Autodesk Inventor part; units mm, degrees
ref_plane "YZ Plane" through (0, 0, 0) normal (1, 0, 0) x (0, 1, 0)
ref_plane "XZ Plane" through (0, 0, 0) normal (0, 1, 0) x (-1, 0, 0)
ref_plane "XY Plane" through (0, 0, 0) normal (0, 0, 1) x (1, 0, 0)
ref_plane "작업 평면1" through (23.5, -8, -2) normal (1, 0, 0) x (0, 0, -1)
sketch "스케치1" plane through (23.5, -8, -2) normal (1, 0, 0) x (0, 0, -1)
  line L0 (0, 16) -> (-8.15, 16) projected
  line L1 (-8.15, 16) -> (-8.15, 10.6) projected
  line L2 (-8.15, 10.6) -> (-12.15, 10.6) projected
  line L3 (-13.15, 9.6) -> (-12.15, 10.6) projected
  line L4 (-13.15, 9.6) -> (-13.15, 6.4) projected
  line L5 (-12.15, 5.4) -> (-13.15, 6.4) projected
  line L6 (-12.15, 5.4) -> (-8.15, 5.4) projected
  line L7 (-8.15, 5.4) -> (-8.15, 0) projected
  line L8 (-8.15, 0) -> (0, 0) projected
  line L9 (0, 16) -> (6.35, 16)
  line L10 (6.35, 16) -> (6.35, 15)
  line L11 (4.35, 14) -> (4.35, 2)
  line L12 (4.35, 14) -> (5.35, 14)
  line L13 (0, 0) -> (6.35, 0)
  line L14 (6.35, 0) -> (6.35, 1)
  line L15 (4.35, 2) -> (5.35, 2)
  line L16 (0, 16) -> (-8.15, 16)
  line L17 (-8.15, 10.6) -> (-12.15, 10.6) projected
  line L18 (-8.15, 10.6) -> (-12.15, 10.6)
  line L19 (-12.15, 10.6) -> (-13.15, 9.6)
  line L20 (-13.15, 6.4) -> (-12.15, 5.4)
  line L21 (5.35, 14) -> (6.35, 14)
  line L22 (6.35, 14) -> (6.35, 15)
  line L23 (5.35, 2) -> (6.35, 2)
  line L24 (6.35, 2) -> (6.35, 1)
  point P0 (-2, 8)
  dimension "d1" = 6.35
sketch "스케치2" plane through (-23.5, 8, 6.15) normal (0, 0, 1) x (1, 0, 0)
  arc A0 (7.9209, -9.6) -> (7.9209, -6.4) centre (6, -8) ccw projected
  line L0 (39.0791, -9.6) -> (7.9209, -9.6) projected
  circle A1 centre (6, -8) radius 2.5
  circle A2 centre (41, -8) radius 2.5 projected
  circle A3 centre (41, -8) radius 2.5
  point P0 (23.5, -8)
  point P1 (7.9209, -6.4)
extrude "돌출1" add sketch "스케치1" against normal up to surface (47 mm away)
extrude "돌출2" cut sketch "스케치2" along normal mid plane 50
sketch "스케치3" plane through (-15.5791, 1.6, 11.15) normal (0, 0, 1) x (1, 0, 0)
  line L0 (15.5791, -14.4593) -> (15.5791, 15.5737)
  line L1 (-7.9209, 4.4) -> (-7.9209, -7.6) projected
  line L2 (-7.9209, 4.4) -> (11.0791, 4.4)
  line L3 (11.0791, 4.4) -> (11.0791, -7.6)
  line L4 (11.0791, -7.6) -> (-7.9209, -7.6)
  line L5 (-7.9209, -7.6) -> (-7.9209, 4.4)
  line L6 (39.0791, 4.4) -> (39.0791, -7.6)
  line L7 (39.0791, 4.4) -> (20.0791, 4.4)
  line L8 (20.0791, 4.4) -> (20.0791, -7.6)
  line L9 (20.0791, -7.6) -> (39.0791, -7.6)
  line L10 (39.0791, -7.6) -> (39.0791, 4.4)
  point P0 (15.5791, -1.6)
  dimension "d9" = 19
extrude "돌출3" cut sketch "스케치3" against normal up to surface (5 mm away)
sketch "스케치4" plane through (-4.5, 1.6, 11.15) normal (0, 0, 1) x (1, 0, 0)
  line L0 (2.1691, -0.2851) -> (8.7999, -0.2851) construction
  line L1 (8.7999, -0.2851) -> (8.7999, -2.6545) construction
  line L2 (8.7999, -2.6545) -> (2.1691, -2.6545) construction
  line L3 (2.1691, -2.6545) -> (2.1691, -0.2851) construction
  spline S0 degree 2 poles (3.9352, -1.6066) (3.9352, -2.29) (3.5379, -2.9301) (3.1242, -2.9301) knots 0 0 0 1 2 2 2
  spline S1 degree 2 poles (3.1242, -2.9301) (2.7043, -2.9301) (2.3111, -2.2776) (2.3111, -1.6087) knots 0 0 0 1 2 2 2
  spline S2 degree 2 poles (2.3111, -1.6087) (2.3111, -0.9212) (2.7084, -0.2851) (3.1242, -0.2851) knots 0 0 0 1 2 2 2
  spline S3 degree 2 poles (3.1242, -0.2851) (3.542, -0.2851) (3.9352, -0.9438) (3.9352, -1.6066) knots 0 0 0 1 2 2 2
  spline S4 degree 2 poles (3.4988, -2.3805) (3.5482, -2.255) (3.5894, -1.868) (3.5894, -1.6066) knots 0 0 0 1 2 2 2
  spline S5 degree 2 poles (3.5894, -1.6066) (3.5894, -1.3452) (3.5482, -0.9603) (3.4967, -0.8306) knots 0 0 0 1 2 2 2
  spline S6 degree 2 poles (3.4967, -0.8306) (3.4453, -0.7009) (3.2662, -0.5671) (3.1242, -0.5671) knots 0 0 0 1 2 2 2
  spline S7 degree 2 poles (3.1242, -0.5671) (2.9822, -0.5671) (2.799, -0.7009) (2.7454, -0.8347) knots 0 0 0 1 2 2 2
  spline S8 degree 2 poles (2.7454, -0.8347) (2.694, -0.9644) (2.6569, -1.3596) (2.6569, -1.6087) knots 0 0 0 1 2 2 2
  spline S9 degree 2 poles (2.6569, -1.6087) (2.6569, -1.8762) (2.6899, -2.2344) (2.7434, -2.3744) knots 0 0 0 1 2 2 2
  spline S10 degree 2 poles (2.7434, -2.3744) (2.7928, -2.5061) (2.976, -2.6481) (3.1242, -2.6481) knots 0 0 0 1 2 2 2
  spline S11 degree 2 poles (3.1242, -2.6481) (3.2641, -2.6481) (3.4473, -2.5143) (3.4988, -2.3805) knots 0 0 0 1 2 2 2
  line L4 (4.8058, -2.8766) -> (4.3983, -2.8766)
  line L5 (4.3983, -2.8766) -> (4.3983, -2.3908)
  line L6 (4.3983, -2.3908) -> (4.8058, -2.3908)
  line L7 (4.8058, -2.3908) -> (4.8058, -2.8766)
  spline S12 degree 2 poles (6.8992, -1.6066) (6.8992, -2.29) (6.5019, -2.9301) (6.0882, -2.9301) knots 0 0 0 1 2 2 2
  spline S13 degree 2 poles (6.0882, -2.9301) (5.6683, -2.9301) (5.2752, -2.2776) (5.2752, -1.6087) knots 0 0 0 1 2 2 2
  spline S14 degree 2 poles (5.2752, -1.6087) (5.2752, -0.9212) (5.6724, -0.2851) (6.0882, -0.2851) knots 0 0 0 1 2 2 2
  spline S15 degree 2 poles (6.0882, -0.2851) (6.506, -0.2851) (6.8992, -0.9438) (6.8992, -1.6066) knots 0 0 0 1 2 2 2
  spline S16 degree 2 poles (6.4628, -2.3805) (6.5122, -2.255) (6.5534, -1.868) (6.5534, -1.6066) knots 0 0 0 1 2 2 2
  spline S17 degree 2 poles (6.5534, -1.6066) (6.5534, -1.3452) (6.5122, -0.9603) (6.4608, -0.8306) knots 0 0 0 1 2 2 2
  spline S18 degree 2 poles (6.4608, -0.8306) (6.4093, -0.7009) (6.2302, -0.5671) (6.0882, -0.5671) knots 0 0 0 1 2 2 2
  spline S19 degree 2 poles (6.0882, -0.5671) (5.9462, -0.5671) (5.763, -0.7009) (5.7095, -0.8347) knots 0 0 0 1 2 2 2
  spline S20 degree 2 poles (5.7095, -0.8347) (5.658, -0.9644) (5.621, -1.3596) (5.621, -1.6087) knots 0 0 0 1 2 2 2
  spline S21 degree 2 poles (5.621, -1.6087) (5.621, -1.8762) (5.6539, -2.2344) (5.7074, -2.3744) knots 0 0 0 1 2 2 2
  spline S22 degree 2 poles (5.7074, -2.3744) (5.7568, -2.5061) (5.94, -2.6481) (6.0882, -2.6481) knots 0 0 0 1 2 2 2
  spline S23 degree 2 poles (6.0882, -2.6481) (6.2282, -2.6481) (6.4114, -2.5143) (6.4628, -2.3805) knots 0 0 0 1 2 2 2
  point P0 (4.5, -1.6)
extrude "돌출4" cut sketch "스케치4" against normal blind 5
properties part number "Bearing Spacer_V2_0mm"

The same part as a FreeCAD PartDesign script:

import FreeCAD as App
import Part
import Sketcher

V = App.Vector

doc = App.newDocument("Part")
body = doc.addObject("PartDesign::Body", "Body")

sketch1 = doc.addObject("Sketcher::SketchObject", "Sketch")
body.addObject(sketch1)
sketch1.AttachmentSupport = (doc.YZ_Plane, [""])
sketch1.MapMode = "FlatFace"
sketch1.AttachmentOffset = App.Placement(V(0, 0, 23.5), App.Rotation())
sketch1.addGeometry(Part.LineSegment(V(8, -8.3, 0), V(8, 6.2, 0)), False)
sketch1.addGeometry(Part.LineSegment(V(8, 6.2, 0), V(2.6, 6.2, 0)), False)
sketch1.addGeometry(Part.LineSegment(V(2.6, 6.2, 0), V(2.6, 10.2, 0)), False)
sketch1.addGeometry(Part.LineSegment(V(2.6, 10.2, 0), V(1.6, 11.2, 0)), False)
sketch1.addGeometry(Part.LineSegment(V(1.6, 11.2, 0), V(-1.6, 11.2, 0)), False)
sketch1.addGeometry(Part.LineSegment(V(-1.6, 11.2, 0), V(-2.6, 10.2, 0)), False)
sketch1.addGeometry(Part.LineSegment(V(-2.6, 10.2, 0), V(-2.6, 6.2, 0)), False)
sketch1.addGeometry(Part.LineSegment(V(-2.6, 6.2, 0), V(-8, 6.2, 0)), False)
sketch1.addGeometry(Part.LineSegment(V(-8, 6.2, 0), V(-8, -8.3, 0)), False)
sketch1.addGeometry(Part.LineSegment(V(-8, -8.3, 0), V(-6, -8.3, 0)), False)
sketch1.addGeometry(Part.LineSegment(V(-6, -8.3, 0), V(-6, -6.3, 0)), False)
sketch1.addGeometry(Part.LineSegment(V(-6, -6.3, 0), V(6, -6.3, 0)), False)
sketch1.addGeometry(Part.LineSegment(V(6, -6.3, 0), V(6, -8.3, 0)), False)
sketch1.addGeometry(Part.LineSegment(V(6, -8.3, 0), V(8, -8.3, 0)), False)
sketch1.addConstraint(Sketcher.Constraint("Coincident", 0, 2, 1, 1))
sketch1.addConstraint(Sketcher.Constraint("Coincident", 1, 2, 2, 1))
sketch1.addConstraint(Sketcher.Constraint("Coincident", 2, 2, 3, 1))
sketch1.addConstraint(Sketcher.Constraint("Coincident", 3, 2, 4, 1))
sketch1.addConstraint(Sketcher.Constraint("Coincident", 4, 2, 5, 1))
sketch1.addConstraint(Sketcher.Constraint("Coincident", 5, 2, 6, 1))
sketch1.addConstraint(Sketcher.Constraint("Coincident", 6, 2, 7, 1))
sketch1.addConstraint(Sketcher.Constraint("Coincident", 7, 2, 8, 1))
sketch1.addConstraint(Sketcher.Constraint("Coincident", 8, 2, 9, 1))
sketch1.addConstraint(Sketcher.Constraint("Coincident", 9, 2, 10, 1))
sketch1.addConstraint(Sketcher.Constraint("Coincident", 10, 2, 11, 1))
sketch1.addConstraint(Sketcher.Constraint("Coincident", 11, 2, 12, 1))
sketch1.addConstraint(Sketcher.Constraint("Coincident", 12, 2, 13, 1))
sketch1.addConstraint(Sketcher.Constraint("Coincident", 13, 2, 0, 1))
sketch1.addConstraint(Sketcher.Constraint("Vertical", 0))
sketch1.addConstraint(Sketcher.Constraint("Horizontal", 1))
sketch1.addConstraint(Sketcher.Constraint("Vertical", 2))
sketch1.addConstraint(Sketcher.Constraint("Horizontal", 4))
sketch1.addConstraint(Sketcher.Constraint("Vertical", 6))
sketch1.addConstraint(Sketcher.Constraint("Horizontal", 7))
sketch1.addConstraint(Sketcher.Constraint("Vertical", 8))
sketch1.addConstraint(Sketcher.Constraint("Horizontal", 9))
sketch1.addConstraint(Sketcher.Constraint("Vertical", 10))
sketch1.addConstraint(Sketcher.Constraint("Horizontal", 11))
sketch1.addConstraint(Sketcher.Constraint("Vertical", 12))
sketch1.addConstraint(Sketcher.Constraint("Horizontal", 13))
sketch1.addConstraint(Sketcher.Constraint("Symmetric", 2, 2, 5, 2, -2))
sketch1.addConstraint(Sketcher.Constraint("Symmetric", 0, 2, 7, 2, -2))
sketch1.addConstraint(Sketcher.Constraint("Symmetric", 9, 2, 12, 2, -2))
sketch1.addConstraint(Sketcher.Constraint("Perpendicular", 3, 5))
sketch1.addConstraint(Sketcher.Constraint("Equal", 13, 10))
sketch1.addConstraint(Sketcher.Constraint("Equal", 3, 5))
sketch1.addConstraint(Sketcher.Constraint("DistanceX", 9, 1, 9, 2, 2.0))
sketch1.addConstraint(Sketcher.Constraint("DistanceX", 11, 1, 11, 2, 12.0))
sketch1.addConstraint(Sketcher.Constraint("DistanceY", 2, 1, 2, 2, 4.0))
sketch1.addConstraint(Sketcher.Constraint("DistanceY", 10, 2, -1, 1, 6.35))
sketch1.addConstraint(Sketcher.Constraint("DistanceX", 1, 2, 1, 1, 5.4))
sketch1.addConstraint(Sketcher.Constraint("DistanceX", 4, 2, 4, 1, 3.2))
sketch1.addConstraint(Sketcher.Constraint("DistanceY", 0, 1, 0, 2, 14.5))
pad1 = doc.addObject("PartDesign::Pad", "Pad")
body.addObject(pad1)
pad1.Profile = sketch1
pad1.Length = 47
pad1.Reversed = True

sketch2 = doc.addObject("Sketcher::SketchObject", "Sketch001")
body.addObject(sketch2)
sketch2.AttachmentSupport = (doc.XY_Plane, [""])
sketch2.MapMode = "FlatFace"
sketch2.AttachmentOffset = App.Placement(V(0, 0, 6.15), App.Rotation())
sketch2.addGeometry(Part.Circle(V(-17.5, 0, 0), V(0, 0, 1), 2.5), False)
sketch2.addGeometry(Part.Circle(V(17.5, 0, 0), V(0, 0, 1), 2.5), False)
sketch2.addConstraint(Sketcher.Constraint("Equal", 0, 1))
sketch2.addConstraint(Sketcher.Constraint("Symmetric", 0, 3, 1, 3, -1, 1))
sketch2.addConstraint(Sketcher.Constraint("PointOnObject", 0, 3, -1))
sketch2.addConstraint(Sketcher.Constraint("Diameter", 0, 5.0))
sketch2.addConstraint(Sketcher.Constraint("DistanceX", 0, 3, 1, 3, 35.0))
pocket1 = doc.addObject("PartDesign::Pocket", "Pocket")
body.addObject(pocket1)
pocket1.Profile = sketch2
pocket1.Length = 50
pocket1.Midplane = True

sketch3 = doc.addObject("Sketcher::SketchObject", "Sketch002")
body.addObject(sketch3)
sketch3.AttachmentSupport = (doc.XY_Plane, [""])
sketch3.MapMode = "FlatFace"
sketch3.AttachmentOffset = App.Placement(V(0, 0, 11.15), App.Rotation())
sketch3.addGeometry(Part.LineSegment(V(-4, 6, 0), V(-24, 6, 0)), False)
sketch3.addGeometry(Part.LineSegment(V(-24, 6, 0), V(-24, -6, 0)), False)
sketch3.addGeometry(Part.LineSegment(V(-24, -6, 0), V(-4, -6, 0)), False)
sketch3.addGeometry(Part.LineSegment(V(-4, -6, 0), V(-4, 6, 0)), False)
sketch3.addGeometry(Part.LineSegment(V(24, -6, 0), V(24, 6, 0)), False)
sketch3.addGeometry(Part.LineSegment(V(24, 6, 0), V(4, 6, 0)), False)
sketch3.addGeometry(Part.LineSegment(V(4, 6, 0), V(4, -6, 0)), False)
sketch3.addGeometry(Part.LineSegment(V(4, -6, 0), V(24, -6, 0)), False)
sketch3.addConstraint(Sketcher.Constraint("Coincident", 0, 2, 1, 1))
sketch3.addConstraint(Sketcher.Constraint("Coincident", 1, 2, 2, 1))
sketch3.addConstraint(Sketcher.Constraint("Coincident", 2, 2, 3, 1))
sketch3.addConstraint(Sketcher.Constraint("Coincident", 3, 2, 0, 1))
sketch3.addConstraint(Sketcher.Constraint("Coincident", 4, 2, 5, 1))
sketch3.addConstraint(Sketcher.Constraint("Coincident", 5, 2, 6, 1))
sketch3.addConstraint(Sketcher.Constraint("Coincident", 6, 2, 7, 1))
sketch3.addConstraint(Sketcher.Constraint("Coincident", 7, 2, 4, 1))
sketch3.addConstraint(Sketcher.Constraint("Horizontal", 0))
sketch3.addConstraint(Sketcher.Constraint("Vertical", 1))
sketch3.addConstraint(Sketcher.Constraint("Horizontal", 2))
sketch3.addConstraint(Sketcher.Constraint("Vertical", 3))
sketch3.addConstraint(Sketcher.Constraint("Vertical", 4))
sketch3.addConstraint(Sketcher.Constraint("Horizontal", 5))
sketch3.addConstraint(Sketcher.Constraint("Vertical", 6))
sketch3.addConstraint(Sketcher.Constraint("Horizontal", 7))
sketch3.addConstraint(Sketcher.Constraint("Symmetric", 1, 2, 4, 2, -1, 1))
sketch3.addConstraint(Sketcher.Constraint("Symmetric", 3, 2, 6, 2, -1, 1))
sketch3.addConstraint(Sketcher.Constraint("Horizontal", 3, 2, 4, 2))
sketch3.addConstraint(Sketcher.Constraint("DistanceX", 0, 2, 0, 1, 19.0))
sketch3.addConstraint(Sketcher.Constraint("DistanceY", 1, 2, 1, 1, 12.0))
sketch3.addConstraint(Sketcher.Constraint("DistanceX", 3, 2, 4, 2, 28.0))
pocket2 = doc.addObject("PartDesign::Pocket", "Pocket001")
body.addObject(pocket2)
pocket2.Profile = sketch3
pocket2.Length = 5

sketch4 = doc.addObject("Sketcher::SketchObject", "Sketch003")
body.addObject(sketch4)
sketch4.AttachmentSupport = (doc.XY_Plane, [""])
sketch4.MapMode = "FlatFace"
sketch4.AttachmentOffset = App.Placement(V(0, 0, 11.15), App.Rotation())
sketch4.addGeometry(Part.BSplineCurve([V(-0.5648, -0.0066, 0), V(-0.5648, -0.69, 0), V(-0.9621, -1.3301, 0), V(-1.3758, -1.3301, 0)], [3, 1, 3], [0, 1, 2], False, 2, [1, 1, 1, 1], False), False)
sketch4.addGeometry(Part.BSplineCurve([V(-1.3758, 1.3149, 0), V(-0.958, 1.3149, 0), V(-0.5648, 0.6562, 0), V(-0.5648, -0.0066, 0)], [3, 1, 3], [0, 1, 2], False, 2, [1, 1, 1, 1], False), False)
sketch4.addGeometry(Part.BSplineCurve([V(-2.1889, -0.0087, 0), V(-2.1889, 0.6788, 0), V(-1.7916, 1.3149, 0), V(-1.3758, 1.3149, 0)], [3, 1, 3], [0, 1, 2], False, 2, [1, 1, 1, 1], False), False)
sketch4.addGeometry(Part.BSplineCurve([V(-1.3758, -1.3301, 0), V(-1.7957, -1.3301, 0), V(-2.1889, -0.6776, 0), V(-2.1889, -0.0087, 0)], [3, 1, 3], [0, 1, 2], False, 2, [1, 1, 1, 1], False), False)
sketch4.addGeometry(Part.BSplineCurve([V(-1.0012, -0.7805, 0), V(-0.9518, -0.655, 0), V(-0.9106, -0.268, 0), V(-0.9106, -0.0066, 0)], [3, 1, 3], [0, 1, 2], False, 2, [1, 1, 1, 1], False), False)
sketch4.addGeometry(Part.BSplineCurve([V(-1.3758, -1.0481, 0), V(-1.2359, -1.0481, 0), V(-1.0527, -0.9143, 0), V(-1.0012, -0.7805, 0)], [3, 1, 3], [0, 1, 2], False, 2, [1, 1, 1, 1], False), False)
sketch4.addGeometry(Part.BSplineCurve([V(-1.7566, -0.7744, 0), V(-1.7072, -0.9061, 0), V(-1.524, -1.0481, 0), V(-1.3758, -1.0481, 0)], [3, 1, 3], [0, 1, 2], False, 2, [1, 1, 1, 1], False), False)
sketch4.addGeometry(Part.BSplineCurve([V(-1.8431, -0.0087, 0), V(-1.8431, -0.2762, 0), V(-1.8101, -0.6344, 0), V(-1.7566, -0.7744, 0)], [3, 1, 3], [0, 1, 2], False, 2, [1, 1, 1, 1], False), False)
sketch4.addGeometry(Part.BSplineCurve([V(-1.7546, 0.7653, 0), V(-1.806, 0.6356, 0), V(-1.8431, 0.2404, 0), V(-1.8431, -0.0087, 0)], [3, 1, 3], [0, 1, 2], False, 2, [1, 1, 1, 1], False), False)
sketch4.addGeometry(Part.BSplineCurve([V(-1.3758, 1.0329, 0), V(-1.5178, 1.0329, 0), V(-1.701, 0.8991, 0), V(-1.7546, 0.7653, 0)], [3, 1, 3], [0, 1, 2], False, 2, [1, 1, 1, 1], False), False)
sketch4.addGeometry(Part.BSplineCurve([V(-1.0033, 0.7694, 0), V(-1.0547, 0.8991, 0), V(-1.2338, 1.0329, 0), V(-1.3758, 1.0329, 0)], [3, 1, 3], [0, 1, 2], False, 2, [1, 1, 1, 1], False), False)
sketch4.addGeometry(Part.BSplineCurve([V(-0.9106, -0.0066, 0), V(-0.9106, 0.2548, 0), V(-0.9518, 0.6397, 0), V(-1.0033, 0.7694, 0)], [3, 1, 3], [0, 1, 2], False, 2, [1, 1, 1, 1], False), False)
sketch4.addGeometry(Part.LineSegment(V(-0.1017, -1.2766, 0), V(0.3058, -1.2766, 0)), False)
sketch4.addGeometry(Part.LineSegment(V(0.3058, -1.2766, 0), V(0.3058, -0.7908, 0)), False)
sketch4.addGeometry(Part.LineSegment(V(0.3058, -0.7908, 0), V(-0.1017, -0.7908, 0)), False)
sketch4.addGeometry(Part.LineSegment(V(-0.1017, -0.7908, 0), V(-0.1017, -1.2766, 0)), False)
sketch4.addGeometry(Part.BSplineCurve([V(2.3992, -0.0066, 0), V(2.3992, -0.69, 0), V(2.0019, -1.3301, 0), V(1.5882, -1.3301, 0)], [3, 1, 3], [0, 1, 2], False, 2, [1, 1, 1, 1], False), False)
sketch4.addGeometry(Part.BSplineCurve([V(1.5882, 1.3149, 0), V(2.006, 1.3149, 0), V(2.3992, 0.6562, 0), V(2.3992, -0.0066, 0)], [3, 1, 3], [0, 1, 2], False, 2, [1, 1, 1, 1], False), False)
sketch4.addGeometry(Part.BSplineCurve([V(0.7752, -0.0087, 0), V(0.7752, 0.6788, 0), V(1.1724, 1.3149, 0), V(1.5882, 1.3149, 0)], [3, 1, 3], [0, 1, 2], False, 2, [1, 1, 1, 1], False), False)
sketch4.addGeometry(Part.BSplineCurve([V(1.5882, -1.3301, 0), V(1.1683, -1.3301, 0), V(0.7752, -0.6776, 0), V(0.7752, -0.0087, 0)], [3, 1, 3], [0, 1, 2], False, 2, [1, 1, 1, 1], False), False)
sketch4.addGeometry(Part.BSplineCurve([V(1.9628, -0.7805, 0), V(2.0122, -0.655, 0), V(2.0534, -0.268, 0), V(2.0534, -0.0066, 0)], [3, 1, 3], [0, 1, 2], False, 2, [1, 1, 1, 1], False), False)
sketch4.addGeometry(Part.BSplineCurve([V(1.5882, -1.0481, 0), V(1.7282, -1.0481, 0), V(1.9114, -0.9143, 0), V(1.9628, -0.7805, 0)], [3, 1, 3], [0, 1, 2], False, 2, [1, 1, 1, 1], False), False)
sketch4.addGeometry(Part.BSplineCurve([V(1.2074, -0.7744, 0), V(1.2568, -0.9061, 0), V(1.44, -1.0481, 0), V(1.5882, -1.0481, 0)], [3, 1, 3], [0, 1, 2], False, 2, [1, 1, 1, 1], False), False)
sketch4.addGeometry(Part.BSplineCurve([V(1.121, -0.0087, 0), V(1.121, -0.2762, 0), V(1.1539, -0.6344, 0), V(1.2074, -0.7744, 0)], [3, 1, 3], [0, 1, 2], False, 2, [1, 1, 1, 1], False), False)
sketch4.addGeometry(Part.BSplineCurve([V(1.2095, 0.7653, 0), V(1.158, 0.6356, 0), V(1.121, 0.2404, 0), V(1.121, -0.0087, 0)], [3, 1, 3], [0, 1, 2], False, 2, [1, 1, 1, 1], False), False)
sketch4.addGeometry(Part.BSplineCurve([V(1.5882, 1.0329, 0), V(1.4462, 1.0329, 0), V(1.263, 0.8991, 0), V(1.2095, 0.7653, 0)], [3, 1, 3], [0, 1, 2], False, 2, [1, 1, 1, 1], False), False)
sketch4.addGeometry(Part.BSplineCurve([V(1.9608, 0.7694, 0), V(1.9093, 0.8991, 0), V(1.7302, 1.0329, 0), V(1.5882, 1.0329, 0)], [3, 1, 3], [0, 1, 2], False, 2, [1, 1, 1, 1], False), False)
sketch4.addGeometry(Part.BSplineCurve([V(2.0534, -0.0066, 0), V(2.0534, 0.2548, 0), V(2.0122, 0.6397, 0), V(1.9608, 0.7694, 0)], [3, 1, 3], [0, 1, 2], False, 2, [1, 1, 1, 1], False), False)
sketch4.addConstraint(Sketcher.Constraint("Block", 0))
sketch4.addConstraint(Sketcher.Constraint("Block", 1))
sketch4.addConstraint(Sketcher.Constraint("Block", 2))
sketch4.addConstraint(Sketcher.Constraint("Block", 3))
sketch4.addConstraint(Sketcher.Constraint("Block", 4))
sketch4.addConstraint(Sketcher.Constraint("Block", 5))
sketch4.addConstraint(Sketcher.Constraint("Block", 6))
sketch4.addConstraint(Sketcher.Constraint("Block", 7))
sketch4.addConstraint(Sketcher.Constraint("Block", 8))
sketch4.addConstraint(Sketcher.Constraint("Block", 9))
sketch4.addConstraint(Sketcher.Constraint("Block", 10))
sketch4.addConstraint(Sketcher.Constraint("Block", 11))
sketch4.addConstraint(Sketcher.Constraint("Block", 16))
sketch4.addConstraint(Sketcher.Constraint("Block", 17))
sketch4.addConstraint(Sketcher.Constraint("Block", 18))
sketch4.addConstraint(Sketcher.Constraint("Block", 19))
sketch4.addConstraint(Sketcher.Constraint("Block", 20))
sketch4.addConstraint(Sketcher.Constraint("Block", 21))
sketch4.addConstraint(Sketcher.Constraint("Block", 22))
sketch4.addConstraint(Sketcher.Constraint("Block", 23))
sketch4.addConstraint(Sketcher.Constraint("Block", 24))
sketch4.addConstraint(Sketcher.Constraint("Block", 25))
sketch4.addConstraint(Sketcher.Constraint("Block", 26))
sketch4.addConstraint(Sketcher.Constraint("Block", 27))
sketch4.addConstraint(Sketcher.Constraint("Coincident", 12, 2, 13, 1))
sketch4.addConstraint(Sketcher.Constraint("Coincident", 13, 2, 14, 1))
sketch4.addConstraint(Sketcher.Constraint("Coincident", 14, 2, 15, 1))
sketch4.addConstraint(Sketcher.Constraint("Coincident", 15, 2, 12, 1))
sketch4.addConstraint(Sketcher.Constraint("Horizontal", 12))
sketch4.addConstraint(Sketcher.Constraint("Vertical", 13))
sketch4.addConstraint(Sketcher.Constraint("Horizontal", 14))
sketch4.addConstraint(Sketcher.Constraint("Vertical", 15))
sketch4.addConstraint(Sketcher.Constraint("DistanceX", 12, 1, 12, 2, 0.4075))
sketch4.addConstraint(Sketcher.Constraint("DistanceY", 13, 1, 13, 2, 0.4858))
sketch4.addConstraint(Sketcher.Constraint("DistanceX", -1, 1, 12, 2, 0.3058))
sketch4.addConstraint(Sketcher.Constraint("DistanceY", 12, 2, -1, 1, 1.2766))
pocket3 = doc.addObject("PartDesign::Pocket", "Pocket002")
body.addObject(pocket3)
pocket3.Profile = sketch4
pocket3.Length = 5

doc.recompute()
